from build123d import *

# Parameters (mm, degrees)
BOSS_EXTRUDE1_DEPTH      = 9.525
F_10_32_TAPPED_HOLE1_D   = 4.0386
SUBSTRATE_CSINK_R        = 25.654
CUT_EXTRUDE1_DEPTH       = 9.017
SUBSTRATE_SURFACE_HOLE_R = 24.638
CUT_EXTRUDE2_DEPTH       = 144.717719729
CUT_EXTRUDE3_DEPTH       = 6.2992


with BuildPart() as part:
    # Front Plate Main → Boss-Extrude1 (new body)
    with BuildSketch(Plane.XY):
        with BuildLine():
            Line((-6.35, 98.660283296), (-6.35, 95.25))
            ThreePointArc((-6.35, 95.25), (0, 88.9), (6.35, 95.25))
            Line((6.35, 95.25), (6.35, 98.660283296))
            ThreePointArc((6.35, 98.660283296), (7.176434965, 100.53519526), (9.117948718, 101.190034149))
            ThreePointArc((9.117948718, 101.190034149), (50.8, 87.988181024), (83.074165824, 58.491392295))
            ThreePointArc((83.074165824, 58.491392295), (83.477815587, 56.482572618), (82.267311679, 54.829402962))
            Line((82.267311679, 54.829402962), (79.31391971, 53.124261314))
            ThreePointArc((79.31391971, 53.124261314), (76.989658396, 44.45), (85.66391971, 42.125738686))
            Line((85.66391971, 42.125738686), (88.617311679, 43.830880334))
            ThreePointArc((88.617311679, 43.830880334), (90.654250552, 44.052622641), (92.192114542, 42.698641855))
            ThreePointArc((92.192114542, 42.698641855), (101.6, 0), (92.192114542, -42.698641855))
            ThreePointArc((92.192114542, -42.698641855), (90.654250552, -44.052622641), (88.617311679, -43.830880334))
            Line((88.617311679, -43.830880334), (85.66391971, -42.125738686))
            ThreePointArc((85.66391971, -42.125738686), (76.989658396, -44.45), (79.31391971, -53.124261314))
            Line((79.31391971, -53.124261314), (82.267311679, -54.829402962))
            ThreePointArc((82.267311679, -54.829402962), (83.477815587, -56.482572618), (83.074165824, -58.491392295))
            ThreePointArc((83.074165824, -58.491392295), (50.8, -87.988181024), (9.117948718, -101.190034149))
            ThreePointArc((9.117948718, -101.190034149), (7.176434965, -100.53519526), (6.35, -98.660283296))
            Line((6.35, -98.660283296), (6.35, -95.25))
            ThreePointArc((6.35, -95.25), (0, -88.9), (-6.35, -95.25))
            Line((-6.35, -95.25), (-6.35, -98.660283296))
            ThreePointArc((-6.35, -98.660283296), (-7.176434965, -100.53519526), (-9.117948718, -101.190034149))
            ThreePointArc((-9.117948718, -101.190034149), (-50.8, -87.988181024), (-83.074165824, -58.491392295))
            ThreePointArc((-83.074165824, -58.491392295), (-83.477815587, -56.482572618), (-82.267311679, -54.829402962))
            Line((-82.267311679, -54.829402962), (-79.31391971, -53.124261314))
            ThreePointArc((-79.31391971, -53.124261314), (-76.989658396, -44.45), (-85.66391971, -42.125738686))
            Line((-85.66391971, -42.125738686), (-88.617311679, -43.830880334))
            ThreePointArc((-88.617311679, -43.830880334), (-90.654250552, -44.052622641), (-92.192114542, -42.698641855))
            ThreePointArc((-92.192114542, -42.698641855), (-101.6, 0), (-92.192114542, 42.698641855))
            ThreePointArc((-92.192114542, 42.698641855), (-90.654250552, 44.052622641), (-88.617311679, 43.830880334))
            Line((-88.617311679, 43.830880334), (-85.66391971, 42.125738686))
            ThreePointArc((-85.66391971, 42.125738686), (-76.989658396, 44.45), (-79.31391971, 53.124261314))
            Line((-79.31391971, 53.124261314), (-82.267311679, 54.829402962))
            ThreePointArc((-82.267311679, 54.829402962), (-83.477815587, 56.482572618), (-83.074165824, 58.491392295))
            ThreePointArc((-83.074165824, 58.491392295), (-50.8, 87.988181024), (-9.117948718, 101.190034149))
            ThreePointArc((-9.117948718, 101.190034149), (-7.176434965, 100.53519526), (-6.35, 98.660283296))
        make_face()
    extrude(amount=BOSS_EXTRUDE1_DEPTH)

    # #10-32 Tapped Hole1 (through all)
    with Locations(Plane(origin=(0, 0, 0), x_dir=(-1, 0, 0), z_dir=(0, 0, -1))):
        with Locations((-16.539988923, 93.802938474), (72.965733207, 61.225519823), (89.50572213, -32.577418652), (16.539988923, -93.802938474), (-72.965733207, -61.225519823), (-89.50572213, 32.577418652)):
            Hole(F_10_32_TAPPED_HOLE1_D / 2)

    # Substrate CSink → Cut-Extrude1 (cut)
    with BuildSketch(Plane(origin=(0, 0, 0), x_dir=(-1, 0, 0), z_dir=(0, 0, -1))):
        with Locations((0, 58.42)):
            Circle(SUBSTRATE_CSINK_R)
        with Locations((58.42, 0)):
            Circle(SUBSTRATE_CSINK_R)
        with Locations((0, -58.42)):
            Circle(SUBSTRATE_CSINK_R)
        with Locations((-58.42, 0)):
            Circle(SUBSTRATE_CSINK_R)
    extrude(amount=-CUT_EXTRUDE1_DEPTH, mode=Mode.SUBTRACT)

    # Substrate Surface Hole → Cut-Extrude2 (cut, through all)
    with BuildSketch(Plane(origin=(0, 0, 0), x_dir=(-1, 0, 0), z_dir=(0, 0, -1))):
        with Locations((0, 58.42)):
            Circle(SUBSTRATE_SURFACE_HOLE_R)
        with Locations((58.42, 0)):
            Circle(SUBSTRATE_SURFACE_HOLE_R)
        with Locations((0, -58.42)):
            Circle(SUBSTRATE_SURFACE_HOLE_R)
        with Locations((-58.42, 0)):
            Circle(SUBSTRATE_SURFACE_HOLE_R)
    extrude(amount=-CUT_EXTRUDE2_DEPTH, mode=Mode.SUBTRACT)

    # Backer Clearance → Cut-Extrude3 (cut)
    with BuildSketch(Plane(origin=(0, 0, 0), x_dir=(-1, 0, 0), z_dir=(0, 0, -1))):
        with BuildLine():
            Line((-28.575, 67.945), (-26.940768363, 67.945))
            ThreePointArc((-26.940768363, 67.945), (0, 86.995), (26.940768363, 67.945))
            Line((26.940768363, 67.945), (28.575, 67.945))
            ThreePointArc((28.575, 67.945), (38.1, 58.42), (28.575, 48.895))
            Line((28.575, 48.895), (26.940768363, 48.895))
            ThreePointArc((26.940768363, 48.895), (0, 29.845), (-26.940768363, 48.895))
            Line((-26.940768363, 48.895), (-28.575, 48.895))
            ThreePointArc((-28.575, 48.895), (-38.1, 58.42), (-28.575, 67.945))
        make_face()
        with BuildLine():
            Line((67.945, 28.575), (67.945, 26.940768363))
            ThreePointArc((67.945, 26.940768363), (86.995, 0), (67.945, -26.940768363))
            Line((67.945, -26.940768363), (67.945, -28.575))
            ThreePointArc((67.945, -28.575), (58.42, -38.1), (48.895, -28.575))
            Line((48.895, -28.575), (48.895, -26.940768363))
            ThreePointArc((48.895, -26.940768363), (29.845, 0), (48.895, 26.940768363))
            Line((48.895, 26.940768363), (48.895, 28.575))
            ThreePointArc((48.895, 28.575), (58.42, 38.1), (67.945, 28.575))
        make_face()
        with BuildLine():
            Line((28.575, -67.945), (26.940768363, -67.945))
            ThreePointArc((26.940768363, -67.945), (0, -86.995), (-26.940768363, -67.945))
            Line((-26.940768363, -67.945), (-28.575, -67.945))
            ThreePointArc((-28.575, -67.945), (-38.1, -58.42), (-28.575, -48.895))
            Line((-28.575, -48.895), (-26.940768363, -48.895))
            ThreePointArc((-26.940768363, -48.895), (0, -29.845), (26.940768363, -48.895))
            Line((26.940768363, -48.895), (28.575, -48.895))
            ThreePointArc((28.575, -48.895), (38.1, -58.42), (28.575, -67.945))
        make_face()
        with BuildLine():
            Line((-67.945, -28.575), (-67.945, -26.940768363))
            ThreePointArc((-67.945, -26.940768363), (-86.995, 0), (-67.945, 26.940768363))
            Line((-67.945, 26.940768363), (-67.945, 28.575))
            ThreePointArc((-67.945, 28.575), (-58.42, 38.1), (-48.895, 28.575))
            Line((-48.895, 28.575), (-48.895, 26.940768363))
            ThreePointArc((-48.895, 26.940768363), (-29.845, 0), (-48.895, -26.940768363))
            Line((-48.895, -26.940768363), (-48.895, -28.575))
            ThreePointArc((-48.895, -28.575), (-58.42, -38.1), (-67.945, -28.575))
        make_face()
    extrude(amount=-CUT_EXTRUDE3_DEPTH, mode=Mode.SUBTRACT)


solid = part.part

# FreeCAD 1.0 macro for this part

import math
import FreeCAD as App
import Part
import Sketcher
Q = App.Units.Quantity

doc = App.newDocument("Part")
body = doc.addObject("PartDesign::Body", "Body")

# Sketch on XY plane
sketch1 = body.newObject("Sketcher::SketchObject", "Sketch")
sketch1.AttachmentSupport = (doc.getObject("XY_Plane"), [""])
sketch1.MapMode = "FlatFace"
sketch1.addGeometry([
    Part.LineSegment(App.Vector(-6.3, 95.2, 0), App.Vector(-6.3, 98.7, 0)),  # 0
    Part.ArcOfCircle(Part.Circle(App.Vector(-8.9, 98.7, 0), App.Vector(0, 0, 1), 2.5), math.radians(0), math.radians(95)),  # 1
    Part.ArcOfCircle(Part.Circle(App.Vector(0, 0, 0), App.Vector(0, 0, 1), 101.6), math.radians(95), math.radians(145)),  # 2
    Part.ArcOfCircle(Part.Circle(App.Vector(-81, 57, 0), App.Vector(0, 0, 1), 2.5), math.radians(145), math.radians(240)),  # 3
    Part.LineSegment(App.Vector(-82.3, 54.8, 0), App.Vector(-79.3, 53.1, 0)),  # 4
    Part.ArcOfCircle(Part.Circle(App.Vector(-82.5, 47.6, 0), App.Vector(0, 0, 1), 6.3), math.radians(-120), math.radians(60)),  # 5
    Part.LineSegment(App.Vector(-85.7, 42.1, 0), App.Vector(-88.6, 43.8, 0)),  # 6
    Part.ArcOfCircle(Part.Circle(App.Vector(-89.9, 41.6, 0), App.Vector(0, 0, 1), 2.5), math.radians(60), math.radians(155)),  # 7
    Part.ArcOfCircle(Part.Circle(App.Vector(0, 0, 0), App.Vector(0, 0, 1), 101.6), math.radians(155), math.radians(205)),  # 8
    Part.ArcOfCircle(Part.Circle(App.Vector(-89.9, -41.6, 0), App.Vector(0, 0, 1), 2.5), math.radians(-155), math.radians(-60)),  # 9
    Part.LineSegment(App.Vector(-88.6, -43.8, 0), App.Vector(-85.7, -42.1, 0)),  # 10
    Part.ArcOfCircle(Part.Circle(App.Vector(-82.5, -47.6, 0), App.Vector(0, 0, 1), 6.3), math.radians(-60), math.radians(120)),  # 11
    Part.LineSegment(App.Vector(-79.3, -53.1, 0), App.Vector(-82.3, -54.8, 0)),  # 12
    Part.ArcOfCircle(Part.Circle(App.Vector(-81, -57, 0), App.Vector(0, 0, 1), 2.5), math.radians(120), math.radians(215)),  # 13
    Part.ArcOfCircle(Part.Circle(App.Vector(0, 0, 0), App.Vector(0, 0, 1), 101.6), math.radians(-145), math.radians(-95)),  # 14
    Part.ArcOfCircle(Part.Circle(App.Vector(-8.9, -98.7, 0), App.Vector(0, 0, 1), 2.5), math.radians(-95), math.radians(0)),  # 15
    Part.LineSegment(App.Vector(-6.3, -98.7, 0), App.Vector(-6.3, -95.2, 0)),  # 16
    Part.ArcOfCircle(Part.Circle(App.Vector(0, -95.2, 0), App.Vector(0, 0, 1), 6.3), math.radians(0), math.radians(180)),  # 17
    Part.LineSegment(App.Vector(6.3, -95.2, 0), App.Vector(6.3, -98.7, 0)),  # 18
    Part.ArcOfCircle(Part.Circle(App.Vector(8.9, -98.7, 0), App.Vector(0, 0, 1), 2.5), math.radians(180), math.radians(275)),  # 19
    Part.ArcOfCircle(Part.Circle(App.Vector(0, 0, 0), App.Vector(0, 0, 1), 101.6), math.radians(-85), math.radians(-35)),  # 20
    Part.ArcOfCircle(Part.Circle(App.Vector(81, -57, 0), App.Vector(0, 0, 1), 2.5), math.radians(-35), math.radians(60)),  # 21
    Part.LineSegment(App.Vector(82.3, -54.8, 0), App.Vector(79.3, -53.1, 0)),  # 22
    Part.ArcOfCircle(Part.Circle(App.Vector(82.5, -47.6, 0), App.Vector(0, 0, 1), 6.3), math.radians(60), math.radians(240)),  # 23
    Part.LineSegment(App.Vector(85.7, -42.1, 0), App.Vector(88.6, -43.8, 0)),  # 24
    Part.ArcOfCircle(Part.Circle(App.Vector(89.9, -41.6, 0), App.Vector(0, 0, 1), 2.5), math.radians(-120), math.radians(-25)),  # 25
    Part.ArcOfCircle(Part.Circle(App.Vector(0, 0, 0), App.Vector(0, 0, 1), 101.6), math.radians(-25), math.radians(25)),  # 26
    Part.ArcOfCircle(Part.Circle(App.Vector(89.9, 41.6, 0), App.Vector(0, 0, 1), 2.5), math.radians(25), math.radians(120)),  # 27
    Part.LineSegment(App.Vector(88.6, 43.8, 0), App.Vector(85.7, 42.1, 0)),  # 28
    Part.ArcOfCircle(Part.Circle(App.Vector(82.5, 47.6, 0), App.Vector(0, 0, 1), 6.3), math.radians(120), math.radians(300)),  # 29
    Part.LineSegment(App.Vector(79.3, 53.1, 0), App.Vector(82.3, 54.8, 0)),  # 30
    Part.ArcOfCircle(Part.Circle(App.Vector(81, 57, 0), App.Vector(0, 0, 1), 2.5), math.radians(-60), math.radians(35)),  # 31
    Part.ArcOfCircle(Part.Circle(App.Vector(0, 0, 0), App.Vector(0, 0, 1), 101.6), math.radians(35), math.radians(85)),  # 32
    Part.ArcOfCircle(Part.Circle(App.Vector(8.9, 98.7, 0), App.Vector(0, 0, 1), 2.5), math.radians(85), math.radians(180)),  # 33
    Part.LineSegment(App.Vector(6.3, 98.7, 0), App.Vector(6.3, 95.2, 0)),  # 34
    Part.ArcOfCircle(Part.Circle(App.Vector(0, 95.2, 0), App.Vector(0, 0, 1), 6.3), math.radians(180), math.radians(360)),  # 35
], False)
sketch1.addConstraint([
    Sketcher.Constraint("Tangent", 0, 2, 1, 1),
    Sketcher.Constraint("Tangent", 1, 2, 2, 1),
    Sketcher.Constraint("Tangent", 2, 2, 3, 1),
    Sketcher.Constraint("Tangent", 3, 2, 4, 1),
    Sketcher.Constraint("Tangent", 4, 2, 5, 2),
    Sketcher.Constraint("Tangent", 5, 1, 6, 1),
    Sketcher.Constraint("Tangent", 6, 2, 7, 1),
    Sketcher.Constraint("Tangent", 7, 2, 8, 1),
    Sketcher.Constraint("Tangent", 8, 2, 9, 1),
    Sketcher.Constraint("Tangent", 9, 2, 10, 1),
    Sketcher.Constraint("Tangent", 10, 2, 11, 2),
    Sketcher.Constraint("Tangent", 11, 1, 12, 1),
    Sketcher.Constraint("Tangent", 12, 2, 13, 1),
    Sketcher.Constraint("Tangent", 13, 2, 14, 1),
    Sketcher.Constraint("Tangent", 14, 2, 15, 1),
    Sketcher.Constraint("Tangent", 15, 2, 16, 1),
    Sketcher.Constraint("Tangent", 16, 2, 17, 2),
    Sketcher.Constraint("Tangent", 17, 1, 18, 1),
    Sketcher.Constraint("Tangent", 18, 2, 19, 1),
    Sketcher.Constraint("Tangent", 19, 2, 20, 1),
    Sketcher.Constraint("Tangent", 20, 2, 21, 1),
    Sketcher.Constraint("Tangent", 21, 2, 22, 1),
    Sketcher.Constraint("Tangent", 22, 2, 23, 2),
    Sketcher.Constraint("Tangent", 23, 1, 24, 1),
    Sketcher.Constraint("Tangent", 24, 2, 25, 1),
    Sketcher.Constraint("Tangent", 25, 2, 26, 1),
    Sketcher.Constraint("Tangent", 26, 2, 27, 1),
    Sketcher.Constraint("Tangent", 27, 2, 28, 1),
    Sketcher.Constraint("Tangent", 28, 2, 29, 2),
    Sketcher.Constraint("Tangent", 29, 1, 30, 1),
    Sketcher.Constraint("Tangent", 30, 2, 31, 1),
    Sketcher.Constraint("Tangent", 31, 2, 32, 1),
    Sketcher.Constraint("Tangent", 32, 2, 33, 1),
    Sketcher.Constraint("Tangent", 33, 2, 34, 1),
    Sketcher.Constraint("Tangent", 34, 2, 35, 2),
    Sketcher.Constraint("Tangent", 35, 1, 0, 1),
    Sketcher.Constraint("Vertical", 0),
    Sketcher.Constraint("Vertical", 16),
    Sketcher.Constraint("Vertical", 18),
    Sketcher.Constraint("Vertical", 34),
    Sketcher.Constraint("Coincident", 2, 3, -1, 1),
    Sketcher.Constraint("Coincident", 8, 3, -1, 1),
    Sketcher.Constraint("Coincident", 14, 3, -1, 1),
    Sketcher.Constraint("Coincident", 20, 3, -1, 1),
    Sketcher.Constraint("Coincident", 26, 3, -1, 1),
    Sketcher.Constraint("Coincident", 32, 3, -1, 1),
    Sketcher.Constraint("Equal", 1, 3),
    Sketcher.Constraint("Equal", 3, 7),
    Sketcher.Constraint("Equal", 2, 8),
    Sketcher.Constraint("Equal", 7, 9),
    Sketcher.Constraint("Equal", 5, 11),
    Sketcher.Constraint("Equal", 9, 13),
    Sketcher.Constraint("Equal", 8, 14),
    Sketcher.Constraint("Equal", 13, 15),
    Sketcher.Constraint("Equal", 11, 17),
    Sketcher.Constraint("Equal", 15, 19),
    Sketcher.Constraint("Equal", 14, 20),
    Sketcher.Constraint("Equal", 19, 21),
    Sketcher.Constraint("Equal", 17, 23),
    Sketcher.Constraint("Equal", 21, 25),
    Sketcher.Constraint("Equal", 20, 26),
    Sketcher.Constraint("Equal", 25, 27),
    Sketcher.Constraint("Equal", 23, 29),
    Sketcher.Constraint("Equal", 27, 31),
    Sketcher.Constraint("Equal", 26, 32),
    Sketcher.Constraint("Equal", 31, 33),
    Sketcher.Constraint("Equal", 29, 35),
    Sketcher.Constraint("Symmetric", 5, 3, 23, 3, -1, 1),
    Sketcher.Constraint("Symmetric", 11, 3, 29, 3, -1, 1),
    Sketcher.Constraint("Symmetric", 17, 3, 35, 3, -1, 1),
    Sketcher.Constraint("Symmetric", 11, 3, 23, 3, -2),
    Sketcher.Constraint("PointOnObject", 17, 3, -2),
    Sketcher.Constraint("Parallel", 4, 6),
    Sketcher.Constraint("Parallel", 10, 12),
    Sketcher.Constraint("Parallel", 6, 22),
    Sketcher.Constraint("Parallel", 22, 24),
    Sketcher.Constraint("Parallel", 12, 28),
    Sketcher.Constraint("Parallel", 28, 30),
    Sketcher.Constraint("Horizontal", 13, 3, 21, 3),
    Sketcher.Constraint("Equal", 4, 6),
    Sketcher.Constraint("Radius", 2, Q("4 in")),
    Sketcher.Constraint("Radius", 1, Q("0.1 in")),
    Sketcher.Constraint("Radius", 5, Q("0.25 in")),
    Sketcher.Constraint("Angle", 4, Q("-30 deg")),
    Sketcher.Constraint("DistanceY", 17, 3, -1, 1, Q("3.75 in")),
    Sketcher.Constraint("DistanceY", 11, 3, 5, 3, Q("3.75 in")),
])
pad1 = body.newObject("PartDesign::Pad", "Pad")
pad1.Profile = sketch1
pad1.Length = Q("0.375 in")

# Sketch on XY plane
sketch2 = body.newObject("Sketcher::SketchObject", "Sketch001")
sketch2.AttachmentSupport = (doc.getObject("XY_Plane"), [""])
sketch2.MapMode = "FlatFace"
sketch2.addGeometry([
    Part.Circle(App.Vector(16.5, 93.8, 0), App.Vector(0, 0, 1), 2),  # 0
    Part.Circle(App.Vector(-73, 61.2, 0), App.Vector(0, 0, 1), 2),  # 1
    Part.Circle(App.Vector(-89.5, -32.6, 0), App.Vector(0, 0, 1), 2),  # 2
    Part.Circle(App.Vector(-16.5, -93.8, 0), App.Vector(0, 0, 1), 2),  # 3
    Part.Circle(App.Vector(73, -61.2, 0), App.Vector(0, 0, 1), 2),  # 4
    Part.Circle(App.Vector(89.5, 32.6, 0), App.Vector(0, 0, 1), 2),  # 5
], False)
sketch2.addConstraint([
    Sketcher.Constraint("Equal", 0, 1),
    Sketcher.Constraint("Equal", 1, 2),
    Sketcher.Constraint("Equal", 2, 3),
    Sketcher.Constraint("Equal", 3, 4),
    Sketcher.Constraint("Equal", 4, 5),
    Sketcher.Constraint("Symmetric", 0, 3, 3, 3, -1, 1),
    Sketcher.Constraint("Symmetric", 1, 3, 4, 3, -1, 1),
    Sketcher.Constraint("Symmetric", 2, 3, 5, 3, -1, 1),
    Sketcher.Constraint("Diameter", 0, Q("0.159 in")),
    Sketcher.Constraint("DistanceY", 4, 3, 2, 3, 28.648101),
    Sketcher.Constraint("DistanceX", -1, 1, 0, 3, 16.539989),
    Sketcher.Constraint("DistanceY", -1, 1, 0, 3, 93.802938),
    Sketcher.Constraint("DistanceY", -1, 1, 1, 3, 61.22552),
    Sketcher.Constraint("DistanceX", 2, 3, 1, 3, 16.539989),
    Sketcher.Constraint("DistanceX", 2, 3, 0, 3, 106.045711),
])
doc.recompute()
hole = body.newObject("PartDesign::Hole", "Hole")
hole.Profile = sketch2
hole.ThreadType = "None"
hole.Diameter = Q("0.159 in")
hole.DepthType = "ThroughAll"
hole.Reversed = True

# Sketch on XY plane
sketch3 = body.newObject("Sketcher::SketchObject", "Sketch002")
sketch3.AttachmentSupport = (doc.getObject("XY_Plane"), [""])
sketch3.MapMode = "FlatFace"
sketch3.addGeometry([
    Part.Circle(App.Vector(0, 58, 0), App.Vector(0, 0, 1), 26),
    Part.Circle(App.Vector(-58, 0, 0), App.Vector(0, 0, 1), 26),
    Part.Circle(App.Vector(0, -58, 0), App.Vector(0, 0, 1), 26),
    Part.Circle(App.Vector(58, 0, 0), App.Vector(0, 0, 1), 26),
], False)
sketch3.addConstraint([
    Sketcher.Constraint("Equal", 0, 1),
    Sketcher.Constraint("Equal", 1, 2),
    Sketcher.Constraint("Equal", 2, 3),
    Sketcher.Constraint("Symmetric", 0, 3, 2, 3, -1, 1),
    Sketcher.Constraint("Symmetric", 1, 3, 3, 3, -1, 1),
    Sketcher.Constraint("PointOnObject", 0, 3, -2),
    Sketcher.Constraint("PointOnObject", 1, 3, -1),
    Sketcher.Constraint("Diameter", 0, Q("2.02 in")),
    Sketcher.Constraint("DistanceY", -1, 1, 0, 3, Q("2.3 in")),
    Sketcher.Constraint("DistanceX", 1, 3, -1, 1, Q("2.3 in")),
])
pocket1 = body.newObject("PartDesign::Pocket", "Pocket")
pocket1.Profile = sketch3
pocket1.Length = Q("0.355 in")
pocket1.Reversed = True

# Sketch on XY plane
sketch4 = body.newObject("Sketcher::SketchObject", "Sketch003")
sketch4.AttachmentSupport = (doc.getObject("XY_Plane"), [""])
sketch4.MapMode = "FlatFace"
sketch4.addGeometry([
    Part.Circle(App.Vector(0, 58, 0), App.Vector(0, 0, 1), 25),
    Part.Circle(App.Vector(-58, 0, 0), App.Vector(0, 0, 1), 25),
    Part.Circle(App.Vector(0, -58, 0), App.Vector(0, 0, 1), 25),
    Part.Circle(App.Vector(58, 0, 0), App.Vector(0, 0, 1), 25),
], False)
sketch4.addConstraint([
    Sketcher.Constraint("Equal", 0, 1),
    Sketcher.Constraint("Equal", 1, 2),
    Sketcher.Constraint("Equal", 2, 3),
    Sketcher.Constraint("Symmetric", 0, 3, 2, 3, -1, 1),
    Sketcher.Constraint("Symmetric", 1, 3, 3, 3, -1, 1),
    Sketcher.Constraint("PointOnObject", 0, 3, -2),
    Sketcher.Constraint("PointOnObject", 1, 3, -1),
    Sketcher.Constraint("Diameter", 0, Q("1.94 in")),
    Sketcher.Constraint("DistanceY", -1, 1, 0, 3, Q("2.3 in")),
    Sketcher.Constraint("DistanceX", 1, 3, -1, 1, Q("2.3 in")),
])
pocket2 = body.newObject("PartDesign::Pocket", "Pocket001")
pocket2.Profile = sketch4
pocket2.Type = "ThroughAll"
pocket2.Reversed = True

# Sketch on XY plane
sketch5 = body.newObject("Sketcher::SketchObject", "Sketch004")
sketch5.AttachmentSupport = (doc.getObject("XY_Plane"), [""])
sketch5.MapMode = "FlatFace"
sketch5.addGeometry([
    Part.LineSegment(App.Vector(26.9, 67.9, 0), App.Vector(28.6, 67.9, 0)),  # 0
    Part.ArcOfCircle(Part.Circle(App.Vector(28.6, 58.4, 0), App.Vector(0, 0, 1), 9.5), math.radians(-90), math.radians(90)),  # 1
    Part.LineSegment(App.Vector(28.6, 48.9, 0), App.Vector(26.9, 48.9, 0)),  # 2
    Part.ArcOfCircle(Part.Circle(App.Vector(0, 58.4, 0), App.Vector(0, 0, 1), 28.6), math.radians(-161), math.radians(-19)),  # 3
    Part.LineSegment(App.Vector(-26.9, 48.9, 0), App.Vector(-28.6, 48.9, 0)),  # 4
    Part.ArcOfCircle(Part.Circle(App.Vector(-28.6, 58.4, 0), App.Vector(0, 0, 1), 9.5), math.radians(90), math.radians(270)),  # 5
    Part.LineSegment(App.Vector(-28.6, 67.9, 0), App.Vector(-26.9, 67.9, 0)),  # 6
    Part.ArcOfCircle(Part.Circle(App.Vector(0, 58.4, 0), App.Vector(0, 0, 1), 28.6), math.radians(19), math.radians(161)),  # 7
    Part.LineSegment(App.Vector(-67.9, 26.9, 0), App.Vector(-67.9, 28.6, 0)),  # 8
    Part.ArcOfCircle(Part.Circle(App.Vector(-58.4, 28.6, 0), App.Vector(0, 0, 1), 9.5), math.radians(0), math.radians(180)),  # 9
    Part.LineSegment(App.Vector(-48.9, 28.6, 0), App.Vector(-48.9, 26.9, 0)),  # 10
    Part.ArcOfCircle(Part.Circle(App.Vector(-58.4, 0, 0), App.Vector(0, 0, 1), 28.6), math.radians(-71), math.radians(71)),  # 11
    Part.LineSegment(App.Vector(-48.9, -26.9, 0), App.Vector(-48.9, -28.6, 0)),  # 12
    Part.ArcOfCircle(Part.Circle(App.Vector(-58.4, -28.6, 0), App.Vector(0, 0, 1), 9.5), math.radians(180), math.radians(360)),  # 13
    Part.LineSegment(App.Vector(-67.9, -28.6, 0), App.Vector(-67.9, -26.9, 0)),  # 14
    Part.ArcOfCircle(Part.Circle(App.Vector(-58.4, 0, 0), App.Vector(0, 0, 1), 28.6), math.radians(109), math.radians(251)),  # 15
    Part.LineSegment(App.Vector(-26.9, -67.9, 0), App.Vector(-28.6, -67.9, 0)),  # 16
    Part.ArcOfCircle(Part.Circle(App.Vector(-28.6, -58.4, 0), App.Vector(0, 0, 1), 9.5), math.radians(90), math.radians(270)),  # 17
    Part.LineSegment(App.Vector(-28.6, -48.9, 0), App.Vector(-26.9, -48.9, 0)),  # 18
    Part.ArcOfCircle(Part.Circle(App.Vector(0, -58.4, 0), App.Vector(0, 0, 1), 28.6), math.radians(19), math.radians(161)),  # 19
    Part.LineSegment(App.Vector(26.9, -48.9, 0), App.Vector(28.6, -48.9, 0)),  # 20
    Part.ArcOfCircle(Part.Circle(App.Vector(28.6, -58.4, 0), App.Vector(0, 0, 1), 9.5), math.radians(-90), math.radians(90)),  # 21
    Part.LineSegment(App.Vector(28.6, -67.9, 0), App.Vector(26.9, -67.9, 0)),  # 22
    Part.ArcOfCircle(Part.Circle(App.Vector(0, -58.4, 0), App.Vector(0, 0, 1), 28.6), math.radians(-161), math.radians(-19)),  # 23
    Part.LineSegment(App.Vector(67.9, -26.9, 0), App.Vector(67.9, -28.6, 0)),  # 24
    Part.ArcOfCircle(Part.Circle(App.Vector(58.4, -28.6, 0), App.Vector(0, 0, 1), 9.5), math.radians(180), math.radians(360)),  # 25
    Part.LineSegment(App.Vector(48.9, -28.6, 0), App.Vector(48.9, -26.9, 0)),  # 26
    Part.ArcOfCircle(Part.Circle(App.Vector(58.4, 0, 0), App.Vector(0, 0, 1), 28.6), math.radians(109), math.radians(251)),  # 27
    Part.LineSegment(App.Vector(48.9, 26.9, 0), App.Vector(48.9, 28.6, 0)),  # 28
    Part.ArcOfCircle(Part.Circle(App.Vector(58.4, 28.6, 0), App.Vector(0, 0, 1), 9.5), math.radians(0), math.radians(180)),  # 29
    Part.LineSegment(App.Vector(67.9, 28.6, 0), App.Vector(67.9, 26.9, 0)),  # 30
    Part.ArcOfCircle(Part.Circle(App.Vector(58.4, 0, 0), App.Vector(0, 0, 1), 28.6), math.radians(-71), math.radians(71)),  # 31
], False)
sketch5.addConstraint([
    Sketcher.Constraint("Tangent", 0, 2, 1, 2),
    Sketcher.Constraint("Tangent", 1, 1, 2, 1),
    Sketcher.Constraint("Coincident", 2, 2, 3, 2),
    Sketcher.Constraint("Coincident", 3, 1, 4, 1),
    Sketcher.Constraint("Tangent", 4, 2, 5, 2),
    Sketcher.Constraint("Tangent", 5, 1, 6, 1),
    Sketcher.Constraint("Coincident", 6, 2, 7, 2),
    Sketcher.Constraint("Coincident", 7, 1, 0, 1),
    Sketcher.Constraint("Tangent", 8, 2, 9, 2),
    Sketcher.Constraint("Tangent", 9, 1, 10, 1),
    Sketcher.Constraint("Coincident", 10, 2, 11, 2),
    Sketcher.Constraint("Coincident", 11, 1, 12, 1),
    Sketcher.Constraint("Tangent", 12, 2, 13, 2),
    Sketcher.Constraint("Tangent", 13, 1, 14, 1),
    Sketcher.Constraint("Coincident", 14, 2, 15, 2),
    Sketcher.Constraint("Coincident", 15, 1, 8, 1),
    Sketcher.Constraint("Tangent", 16, 2, 17, 2),
    Sketcher.Constraint("Tangent", 17, 1, 18, 1),
    Sketcher.Constraint("Coincident", 18, 2, 19, 2),
    Sketcher.Constraint("Coincident", 19, 1, 20, 1),
    Sketcher.Constraint("Tangent", 20, 2, 21, 2),
    Sketcher.Constraint("Tangent", 21, 1, 22, 1),
    Sketcher.Constraint("Coincident", 22, 2, 23, 2),
    Sketcher.Constraint("Coincident", 23, 1, 16, 1),
    Sketcher.Constraint("Tangent", 24, 2, 25, 2),
    Sketcher.Constraint("Tangent", 25, 1, 26, 1),
    Sketcher.Constraint("Coincident", 26, 2, 27, 2),
    Sketcher.Constraint("Coincident", 27, 1, 28, 1),
    Sketcher.Constraint("Tangent", 28, 2, 29, 2),
    Sketcher.Constraint("Tangent", 29, 1, 30, 1),
    Sketcher.Constraint("Coincident", 30, 2, 31, 2),
    Sketcher.Constraint("Coincident", 31, 1, 24, 1),
    Sketcher.Constraint("Horizontal", 0),
    Sketcher.Constraint("Horizontal", 2),
    Sketcher.Constraint("Horizontal", 4),
    Sketcher.Constraint("Horizontal", 6),
    Sketcher.Constraint("Vertical", 8),
    Sketcher.Constraint("Vertical", 10),
    Sketcher.Constraint("Vertical", 12),
    Sketcher.Constraint("Vertical", 14),
    Sketcher.Constraint("Horizontal", 16),
    Sketcher.Constraint("Horizontal", 18),
    Sketcher.Constraint("Horizontal", 20),
    Sketcher.Constraint("Horizontal", 22),
    Sketcher.Constraint("Vertical", 24),
    Sketcher.Constraint("Vertical", 26),
    Sketcher.Constraint("Vertical", 28),
    Sketcher.Constraint("Vertical", 30),
    Sketcher.Constraint("Coincident", 7, 3, 3, 3),
    Sketcher.Constraint("Coincident", 15, 3, 11, 3),
    Sketcher.Constraint("Coincident", 23, 3, 19, 3),
    Sketcher.Constraint("Coincident", 31, 3, 27, 3),
    Sketcher.Constraint("Equal", 1, 5),
    Sketcher.Constraint("Equal", 3, 7),
    Sketcher.Constraint("Equal", 5, 9),
    Sketcher.Constraint("Equal", 7, 11),
    Sketcher.Constraint("Equal", 9, 13),
    Sketcher.Constraint("Equal", 11, 15),
    Sketcher.Constraint("Equal", 13, 17),
    Sketcher.Constraint("Equal", 15, 19),
    Sketcher.Constraint("Equal", 17, 21),
    Sketcher.Constraint("Equal", 19, 23),
    Sketcher.Constraint("Equal", 21, 25),
    Sketcher.Constraint("Equal", 23, 27),
    Sketcher.Constraint("Equal", 25, 29),
    Sketcher.Constraint("Equal", 27, 31),
    Sketcher.Constraint("Symmetric", 1, 3, 17, 3, -1, 1),
    Sketcher.Constraint("Symmetric", 3, 3, 19, 3, -1, 1),
    Sketcher.Constraint("Symmetric", 5, 3, 21, 3, -1, 1),
    Sketcher.Constraint("Symmetric", 9, 3, 25, 3, -1, 1),
    Sketcher.Constraint("Symmetric", 11, 3, 27, 3, -1, 1),
    Sketcher.Constraint("Symmetric", 13, 3, 29, 3, -1, 1),
    Sketcher.Constraint("Symmetric", 1, 3, 5, 3, -2),
    Sketcher.Constraint("Symmetric", 13, 3, 25, 3, -2),
    Sketcher.Constraint("PointOnObject", 3, 3, -2),
    Sketcher.Constraint("PointOnObject", 11, 3, -1),
    Sketcher.Constraint("Horizontal", 1, 3, 3, 3),
    Sketcher.Constraint("Horizontal", 11, 1, 14, 2),
    Sketcher.Constraint("Equal", 22, 8),
    Sketcher.Constraint("Radius", 1, Q("0.375 in")),
    Sketcher.Constraint("Radius", 3, Q("1.125 in")),
    Sketcher.Constraint("DistanceY", -1, 1, 1, 3, Q("2.3 in")),
    Sketcher.Constraint("DistanceX", 9, 3, -1, 1, Q("2.3 in")),
    Sketcher.Constraint("DistanceY", 29, 3, 1, 1, Q("0.8 in")),
])
pocket3 = body.newObject("PartDesign::Pocket", "Pocket002")
pocket3.Profile = sketch5
pocket3.Length = Q("0.248 in")
pocket3.Reversed = True

doc.recompute()
